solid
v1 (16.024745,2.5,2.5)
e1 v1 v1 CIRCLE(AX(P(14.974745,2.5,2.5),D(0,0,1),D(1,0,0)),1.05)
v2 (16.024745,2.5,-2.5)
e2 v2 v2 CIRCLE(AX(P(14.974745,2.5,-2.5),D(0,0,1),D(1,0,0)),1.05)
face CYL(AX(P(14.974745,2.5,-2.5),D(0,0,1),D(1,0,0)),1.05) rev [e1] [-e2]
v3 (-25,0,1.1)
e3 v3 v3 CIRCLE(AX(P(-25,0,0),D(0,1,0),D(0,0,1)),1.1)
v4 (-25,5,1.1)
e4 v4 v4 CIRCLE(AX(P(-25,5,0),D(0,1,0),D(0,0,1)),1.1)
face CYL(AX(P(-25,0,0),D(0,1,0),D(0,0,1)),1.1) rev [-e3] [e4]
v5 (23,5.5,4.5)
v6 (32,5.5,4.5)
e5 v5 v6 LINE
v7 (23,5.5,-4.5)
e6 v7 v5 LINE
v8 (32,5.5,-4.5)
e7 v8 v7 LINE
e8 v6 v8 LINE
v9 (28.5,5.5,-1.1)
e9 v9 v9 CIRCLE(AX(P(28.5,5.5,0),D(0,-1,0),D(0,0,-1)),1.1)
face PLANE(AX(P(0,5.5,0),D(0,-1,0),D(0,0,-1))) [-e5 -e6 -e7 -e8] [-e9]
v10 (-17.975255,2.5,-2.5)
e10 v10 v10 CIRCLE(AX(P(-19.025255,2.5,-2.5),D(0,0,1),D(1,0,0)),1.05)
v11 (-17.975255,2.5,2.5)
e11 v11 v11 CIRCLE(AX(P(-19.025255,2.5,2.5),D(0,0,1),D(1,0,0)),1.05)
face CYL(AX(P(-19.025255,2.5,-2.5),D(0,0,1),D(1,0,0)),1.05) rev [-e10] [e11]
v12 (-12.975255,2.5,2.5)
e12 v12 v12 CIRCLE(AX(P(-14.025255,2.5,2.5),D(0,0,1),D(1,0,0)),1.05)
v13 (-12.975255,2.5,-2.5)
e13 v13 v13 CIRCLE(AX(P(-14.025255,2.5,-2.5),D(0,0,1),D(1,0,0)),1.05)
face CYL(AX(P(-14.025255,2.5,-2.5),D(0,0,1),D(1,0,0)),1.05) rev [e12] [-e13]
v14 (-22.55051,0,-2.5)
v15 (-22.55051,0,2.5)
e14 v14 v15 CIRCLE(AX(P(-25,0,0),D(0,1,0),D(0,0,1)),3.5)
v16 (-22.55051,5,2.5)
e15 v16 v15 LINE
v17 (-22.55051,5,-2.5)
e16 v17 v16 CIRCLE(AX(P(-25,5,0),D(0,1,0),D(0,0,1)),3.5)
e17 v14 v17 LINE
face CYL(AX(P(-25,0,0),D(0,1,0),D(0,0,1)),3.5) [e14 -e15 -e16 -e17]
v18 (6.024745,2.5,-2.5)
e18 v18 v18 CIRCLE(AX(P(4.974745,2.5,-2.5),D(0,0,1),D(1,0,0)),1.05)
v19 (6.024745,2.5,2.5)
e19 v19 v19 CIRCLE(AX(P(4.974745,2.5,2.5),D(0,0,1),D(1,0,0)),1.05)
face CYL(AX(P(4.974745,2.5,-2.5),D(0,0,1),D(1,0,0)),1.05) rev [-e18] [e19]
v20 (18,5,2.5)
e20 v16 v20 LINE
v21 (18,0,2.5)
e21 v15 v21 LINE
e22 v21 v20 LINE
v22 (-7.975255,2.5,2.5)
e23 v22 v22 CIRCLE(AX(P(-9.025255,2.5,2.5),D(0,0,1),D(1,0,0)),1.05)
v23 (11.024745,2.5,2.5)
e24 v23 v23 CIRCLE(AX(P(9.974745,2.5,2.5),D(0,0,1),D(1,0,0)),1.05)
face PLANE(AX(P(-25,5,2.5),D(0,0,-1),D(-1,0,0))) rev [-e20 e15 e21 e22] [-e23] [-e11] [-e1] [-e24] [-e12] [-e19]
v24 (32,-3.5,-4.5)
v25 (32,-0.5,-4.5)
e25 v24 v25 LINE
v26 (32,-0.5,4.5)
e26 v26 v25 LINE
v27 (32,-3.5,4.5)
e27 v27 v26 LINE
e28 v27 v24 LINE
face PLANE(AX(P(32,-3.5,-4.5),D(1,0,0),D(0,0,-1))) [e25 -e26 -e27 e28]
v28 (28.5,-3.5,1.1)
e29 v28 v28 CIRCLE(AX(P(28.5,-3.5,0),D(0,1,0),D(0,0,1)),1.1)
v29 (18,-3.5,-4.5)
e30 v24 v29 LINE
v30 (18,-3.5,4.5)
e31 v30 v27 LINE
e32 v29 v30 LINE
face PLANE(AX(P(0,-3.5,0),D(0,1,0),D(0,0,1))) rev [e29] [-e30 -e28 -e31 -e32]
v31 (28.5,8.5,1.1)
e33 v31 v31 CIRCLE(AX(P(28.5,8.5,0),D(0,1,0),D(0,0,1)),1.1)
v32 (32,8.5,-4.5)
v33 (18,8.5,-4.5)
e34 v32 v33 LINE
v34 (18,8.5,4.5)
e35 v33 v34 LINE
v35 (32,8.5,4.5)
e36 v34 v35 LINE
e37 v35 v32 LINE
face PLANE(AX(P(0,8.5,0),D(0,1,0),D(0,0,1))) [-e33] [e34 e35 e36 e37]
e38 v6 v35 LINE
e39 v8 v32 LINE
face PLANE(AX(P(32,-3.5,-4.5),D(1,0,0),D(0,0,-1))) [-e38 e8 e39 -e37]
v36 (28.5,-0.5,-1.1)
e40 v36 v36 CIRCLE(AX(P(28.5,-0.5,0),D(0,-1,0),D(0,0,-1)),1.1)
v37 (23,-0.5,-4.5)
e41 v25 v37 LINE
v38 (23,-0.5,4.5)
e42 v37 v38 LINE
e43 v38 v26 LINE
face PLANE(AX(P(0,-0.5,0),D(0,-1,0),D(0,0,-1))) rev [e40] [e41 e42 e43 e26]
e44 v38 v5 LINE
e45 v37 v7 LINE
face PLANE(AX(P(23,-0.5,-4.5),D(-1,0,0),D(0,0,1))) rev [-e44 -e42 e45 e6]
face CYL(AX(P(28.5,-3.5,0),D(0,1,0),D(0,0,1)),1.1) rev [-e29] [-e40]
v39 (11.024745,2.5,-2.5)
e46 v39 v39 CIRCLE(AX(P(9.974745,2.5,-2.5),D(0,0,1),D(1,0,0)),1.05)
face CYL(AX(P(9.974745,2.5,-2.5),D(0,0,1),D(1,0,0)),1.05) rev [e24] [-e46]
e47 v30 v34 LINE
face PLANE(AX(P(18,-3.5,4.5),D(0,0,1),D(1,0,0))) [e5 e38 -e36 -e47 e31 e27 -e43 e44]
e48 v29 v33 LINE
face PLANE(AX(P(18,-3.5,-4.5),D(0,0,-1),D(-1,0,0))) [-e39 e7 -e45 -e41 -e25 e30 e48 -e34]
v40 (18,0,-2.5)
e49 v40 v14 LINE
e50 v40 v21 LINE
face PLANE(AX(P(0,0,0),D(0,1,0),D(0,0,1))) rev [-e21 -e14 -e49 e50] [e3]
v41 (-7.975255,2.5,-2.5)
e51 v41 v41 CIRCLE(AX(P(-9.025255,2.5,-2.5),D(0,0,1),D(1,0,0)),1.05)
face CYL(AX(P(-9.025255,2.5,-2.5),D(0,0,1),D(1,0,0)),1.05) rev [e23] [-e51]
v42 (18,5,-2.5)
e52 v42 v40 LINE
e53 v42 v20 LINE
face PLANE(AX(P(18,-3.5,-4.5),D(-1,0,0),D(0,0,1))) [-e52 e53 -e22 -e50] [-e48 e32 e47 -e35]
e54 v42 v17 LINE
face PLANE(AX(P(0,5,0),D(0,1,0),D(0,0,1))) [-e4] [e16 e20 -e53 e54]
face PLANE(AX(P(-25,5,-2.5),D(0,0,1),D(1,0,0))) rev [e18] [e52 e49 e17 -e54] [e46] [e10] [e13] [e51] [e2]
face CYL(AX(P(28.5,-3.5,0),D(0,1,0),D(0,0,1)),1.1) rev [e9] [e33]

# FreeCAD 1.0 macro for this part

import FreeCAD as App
import Part
import Sketcher
from FreeCAD import Vector
Q = App.Units.Quantity

doc = App.newDocument("Part")
body = doc.addObject("PartDesign::Body", "Body")

sketch1 = body.newObject("Sketcher::SketchObject", "Sketch")
sketch1.AttachmentSupport = (doc.getObject("XZ_Plane"), [""])
sketch1.MapMode = "FlatFace"
sketch1.addGeometry([
    Part.LineSegment(Vector(-25, -2.5, 0), Vector(-25, 2.5, 0)),
    Part.LineSegment(Vector(-25, 2.5, 0), Vector(25, 2.5, 0)),
    Part.LineSegment(Vector(25, 2.5, 0), Vector(25, -2.5, 0)),
    Part.LineSegment(Vector(25, -2.5, 0), Vector(-25, -2.5, 0)),
], False)
sketch1.addConstraint([
    Sketcher.Constraint("Coincident", 0, 2, 1, 1),
    Sketcher.Constraint("Coincident", 1, 2, 2, 1),
    Sketcher.Constraint("Coincident", 2, 2, 3, 1),
    Sketcher.Constraint("Coincident", 3, 2, 0, 1),
    Sketcher.Constraint("Vertical", 0),
    Sketcher.Constraint("Horizontal", 1),
    Sketcher.Constraint("Vertical", 2),
    Sketcher.Constraint("Horizontal", 3),
    Sketcher.Constraint("Symmetric", 0, 2, 2, 2, -1, 1),
    Sketcher.Constraint("DistanceX", 1, 1, 1, 2, Q("50 mm")),
    Sketcher.Constraint("DistanceY", 0, 1, 0, 2, Q("5 mm")),
])
pad1 = body.newObject("PartDesign::Pad", "Pad")
pad1.Profile = sketch1
pad1.Length = 5
pad1.Reversed = True

sketch2 = body.newObject("Sketcher::SketchObject", "Sketch001")
sketch2.AttachmentSupport = (doc.getObject("XZ_Plane"), [""])
sketch2.MapMode = "FlatFace"
sketch2.AttachmentOffset = App.Placement(Vector(0, 0, -8.5), App.Rotation())
sketch2.addGeometry([
    Part.LineSegment(Vector(18, -4.5, 0), Vector(18, 4.5, 0)),
    Part.LineSegment(Vector(18, 4.5, 0), Vector(32, 4.5, 0)),
    Part.LineSegment(Vector(32, 4.5, 0), Vector(32, -4.5, 0)),
    Part.LineSegment(Vector(32, -4.5, 0), Vector(18, -4.5, 0)),
], False)
sketch2.addConstraint([
    Sketcher.Constraint("Coincident", 0, 2, 1, 1),
    Sketcher.Constraint("Coincident", 1, 2, 2, 1),
    Sketcher.Constraint("Coincident", 2, 2, 3, 1),
    Sketcher.Constraint("Coincident", 3, 2, 0, 1),
    Sketcher.Constraint("Vertical", 0),
    Sketcher.Constraint("Horizontal", 1),
    Sketcher.Constraint("Vertical", 2),
    Sketcher.Constraint("Horizontal", 3),
    Sketcher.Constraint("DistanceX", 1, 1, 1, 2, Q("14 mm")),
    Sketcher.Constraint("DistanceY", 0, 1, 0, 2, Q("9 mm")),
    Sketcher.Constraint("DistanceX", -1, 1, 0, 2, Q("18 mm")),
    Sketcher.Constraint("DistanceY", -1, 1, 0, 2, Q("4.5 mm")),
])
pad2 = body.newObject("PartDesign::Pad", "Pad001")
pad2.Profile = sketch2
pad2.Length = 12

sketch3 = body.newObject("Sketcher::SketchObject", "Sketch002")
sketch3.AttachmentSupport = (doc.getObject("XZ_Plane"), [""])
sketch3.MapMode = "FlatFace"
sketch3.AttachmentOffset = App.Placement(Vector(0, 0, -5.5), App.Rotation())
sketch3.addGeometry([
    Part.LineSegment(Vector(23, -4.5, 0), Vector(23, 4.5, 0)),
    Part.LineSegment(Vector(23, 4.5, 0), Vector(32, 4.5, 0)),
    Part.LineSegment(Vector(32, 4.5, 0), Vector(32, -4.5, 0)),
    Part.LineSegment(Vector(32, -4.5, 0), Vector(23, -4.5, 0)),
], False)
sketch3.addConstraint([
    Sketcher.Constraint("Coincident", 0, 2, 1, 1),
    Sketcher.Constraint("Coincident", 1, 2, 2, 1),
    Sketcher.Constraint("Coincident", 2, 2, 3, 1),
    Sketcher.Constraint("Coincident", 3, 2, 0, 1),
    Sketcher.Constraint("Vertical", 0),
    Sketcher.Constraint("Horizontal", 1),
    Sketcher.Constraint("Vertical", 2),
    Sketcher.Constraint("Horizontal", 3),
    Sketcher.Constraint("Equal", 3, 0),
    Sketcher.Constraint("DistanceX", 1, 1, 1, 2, Q("9 mm")),
    Sketcher.Constraint("DistanceX", -1, 1, 0, 2, Q("23 mm")),
    Sketcher.Constraint("DistanceY", -1, 1, 0, 2, Q("4.5 mm")),
])
pocket1 = body.newObject("PartDesign::Pocket", "Pocket")
pocket1.Profile = sketch3
pocket1.Length = 6
pocket1.Reversed = True

sketch4 = body.newObject("Sketcher::SketchObject", "Sketch003")
sketch4.AttachmentSupport = (doc.getObject("XZ_Plane"), [""])
sketch4.MapMode = "FlatFace"
sketch4.AttachmentOffset = App.Placement(Vector(0, 0, -8.5), App.Rotation())
sketch4.addGeometry(Part.Circle(Vector(28.5, 0, 0), Vector(0, 0, 1), 1.1), False)
sketch4.addConstraint([
    Sketcher.Constraint("PointOnObject", 0, 3, -1),
    Sketcher.Constraint("Diameter", 0, Q("2.2 mm")),
    Sketcher.Constraint("DistanceX", -1, 1, 0, 3, Q("28.5 mm")),
])
pocket2 = body.newObject("PartDesign::Pocket", "Pocket001")
pocket2.Profile = sketch4
pocket2.Length = 12
pocket2.Reversed = True

sketch5 = body.newObject("Sketcher::SketchObject", "Sketch004")
sketch5.AttachmentSupport = (doc.getObject("XZ_Plane"), [""])
sketch5.MapMode = "FlatFace"
sketch5.AttachmentOffset = App.Placement(Vector(0, 0, -5), App.Rotation())
sketch5.addGeometry(Part.Circle(Vector(-25, 0, 0), Vector(0, 0, 1), 3.5), False)
sketch5.addConstraint([
    Sketcher.Constraint("PointOnObject", 0, 3, -1),
    Sketcher.Constraint("Diameter", 0, Q("7 mm")),
    Sketcher.Constraint("DistanceX", 0, 3, -1, 1, Q("25 mm")),
])
pad3 = body.newObject("PartDesign::Pad", "Pad002")
pad3.Profile = sketch5
pad3.Length = 5

sketch6 = body.newObject("Sketcher::SketchObject", "Sketch005")
sketch6.AttachmentSupport = (doc.getObject("XZ_Plane"), [""])
sketch6.MapMode = "FlatFace"
sketch6.AttachmentOffset = App.Placement(Vector(0, 0, -5), App.Rotation())
sketch6.addGeometry(Part.Circle(Vector(-25, 0, 0), Vector(0, 0, 1), 1.1), False)
sketch6.addConstraint([
    Sketcher.Constraint("PointOnObject", 0, 3, -1),
    Sketcher.Constraint("Diameter", 0, Q("2.2 mm")),
    Sketcher.Constraint("DistanceX", 0, 3, -1, 1, Q("25 mm")),
])
pocket3 = body.newObject("PartDesign::Pocket", "Pocket002")
pocket3.Profile = sketch6
pocket3.Length = 5
pocket3.Reversed = True

sketch7 = body.newObject("Sketcher::SketchObject", "Sketch006")
sketch7.AttachmentSupport = (doc.getObject("XY_Plane"), [""])
sketch7.MapMode = "FlatFace"
sketch7.AttachmentOffset = App.Placement(Vector(0, 0, 2.5), App.Rotation())
sketch7.addGeometry([
    Part.Circle(Vector(-14.025255, 2.5, 0), Vector(0, 0, 1), 1.05),
    Part.Circle(Vector(9.974745, 2.5, 0), Vector(0, 0, 1), 1.05),
    Part.Circle(Vector(-19.025255, 2.5, 0), Vector(0, 0, 1), 1.05),
    Part.Circle(Vector(-9.025255, 2.5, 0), Vector(0, 0, 1), 1.05),
    Part.Circle(Vector(4.974745, 2.5, 0), Vector(0, 0, 1), 1.05),
    Part.Circle(Vector(14.974745, 2.5, 0), Vector(0, 0, 1), 1.05),
], False)
sketch7.addConstraint([
    Sketcher.Constraint("Equal", 0, 1),
    Sketcher.Constraint("Equal", 1, 2),
    Sketcher.Constraint("Equal", 2, 3),
    Sketcher.Constraint("Equal", 3, 4),
    Sketcher.Constraint("Equal", 4, 5),
    Sketcher.Constraint("Horizontal", 0, 3, 1, 3),
    Sketcher.Constraint("Horizontal", 1, 3, 2, 3),
    Sketcher.Constraint("Horizontal", 2, 3, 3, 3),
    Sketcher.Constraint("Horizontal", 3, 3, 4, 3),
    Sketcher.Constraint("Horizontal", 4, 3, 5, 3),
    Sketcher.Constraint("Diameter", 0, Q("2.1 mm")),
    Sketcher.Constraint("DistanceX", 0, 3, 1, 3, Q("24 mm")),
    Sketcher.Constraint("DistanceX", 2, 3, 0, 3, Q("5 mm")),
    Sketcher.Constraint("DistanceX", 0, 3, 3, 3, Q("5 mm")),
    Sketcher.Constraint("DistanceX", 4, 3, 1, 3, Q("5 mm")),
    Sketcher.Constraint("DistanceX", 1, 3, 5, 3, Q("5 mm")),
    Sketcher.Constraint("DistanceY", -1, 1, 0, 3, Q("2.5 mm")),
    Sketcher.Constraint("DistanceX", 0, 3, -1, 1, Q("14.025255 mm")),
])
pocket4 = body.newObject("PartDesign::Pocket", "Pocket003")
pocket4.Profile = sketch7
pocket4.Length = 5

doc.recompute()
